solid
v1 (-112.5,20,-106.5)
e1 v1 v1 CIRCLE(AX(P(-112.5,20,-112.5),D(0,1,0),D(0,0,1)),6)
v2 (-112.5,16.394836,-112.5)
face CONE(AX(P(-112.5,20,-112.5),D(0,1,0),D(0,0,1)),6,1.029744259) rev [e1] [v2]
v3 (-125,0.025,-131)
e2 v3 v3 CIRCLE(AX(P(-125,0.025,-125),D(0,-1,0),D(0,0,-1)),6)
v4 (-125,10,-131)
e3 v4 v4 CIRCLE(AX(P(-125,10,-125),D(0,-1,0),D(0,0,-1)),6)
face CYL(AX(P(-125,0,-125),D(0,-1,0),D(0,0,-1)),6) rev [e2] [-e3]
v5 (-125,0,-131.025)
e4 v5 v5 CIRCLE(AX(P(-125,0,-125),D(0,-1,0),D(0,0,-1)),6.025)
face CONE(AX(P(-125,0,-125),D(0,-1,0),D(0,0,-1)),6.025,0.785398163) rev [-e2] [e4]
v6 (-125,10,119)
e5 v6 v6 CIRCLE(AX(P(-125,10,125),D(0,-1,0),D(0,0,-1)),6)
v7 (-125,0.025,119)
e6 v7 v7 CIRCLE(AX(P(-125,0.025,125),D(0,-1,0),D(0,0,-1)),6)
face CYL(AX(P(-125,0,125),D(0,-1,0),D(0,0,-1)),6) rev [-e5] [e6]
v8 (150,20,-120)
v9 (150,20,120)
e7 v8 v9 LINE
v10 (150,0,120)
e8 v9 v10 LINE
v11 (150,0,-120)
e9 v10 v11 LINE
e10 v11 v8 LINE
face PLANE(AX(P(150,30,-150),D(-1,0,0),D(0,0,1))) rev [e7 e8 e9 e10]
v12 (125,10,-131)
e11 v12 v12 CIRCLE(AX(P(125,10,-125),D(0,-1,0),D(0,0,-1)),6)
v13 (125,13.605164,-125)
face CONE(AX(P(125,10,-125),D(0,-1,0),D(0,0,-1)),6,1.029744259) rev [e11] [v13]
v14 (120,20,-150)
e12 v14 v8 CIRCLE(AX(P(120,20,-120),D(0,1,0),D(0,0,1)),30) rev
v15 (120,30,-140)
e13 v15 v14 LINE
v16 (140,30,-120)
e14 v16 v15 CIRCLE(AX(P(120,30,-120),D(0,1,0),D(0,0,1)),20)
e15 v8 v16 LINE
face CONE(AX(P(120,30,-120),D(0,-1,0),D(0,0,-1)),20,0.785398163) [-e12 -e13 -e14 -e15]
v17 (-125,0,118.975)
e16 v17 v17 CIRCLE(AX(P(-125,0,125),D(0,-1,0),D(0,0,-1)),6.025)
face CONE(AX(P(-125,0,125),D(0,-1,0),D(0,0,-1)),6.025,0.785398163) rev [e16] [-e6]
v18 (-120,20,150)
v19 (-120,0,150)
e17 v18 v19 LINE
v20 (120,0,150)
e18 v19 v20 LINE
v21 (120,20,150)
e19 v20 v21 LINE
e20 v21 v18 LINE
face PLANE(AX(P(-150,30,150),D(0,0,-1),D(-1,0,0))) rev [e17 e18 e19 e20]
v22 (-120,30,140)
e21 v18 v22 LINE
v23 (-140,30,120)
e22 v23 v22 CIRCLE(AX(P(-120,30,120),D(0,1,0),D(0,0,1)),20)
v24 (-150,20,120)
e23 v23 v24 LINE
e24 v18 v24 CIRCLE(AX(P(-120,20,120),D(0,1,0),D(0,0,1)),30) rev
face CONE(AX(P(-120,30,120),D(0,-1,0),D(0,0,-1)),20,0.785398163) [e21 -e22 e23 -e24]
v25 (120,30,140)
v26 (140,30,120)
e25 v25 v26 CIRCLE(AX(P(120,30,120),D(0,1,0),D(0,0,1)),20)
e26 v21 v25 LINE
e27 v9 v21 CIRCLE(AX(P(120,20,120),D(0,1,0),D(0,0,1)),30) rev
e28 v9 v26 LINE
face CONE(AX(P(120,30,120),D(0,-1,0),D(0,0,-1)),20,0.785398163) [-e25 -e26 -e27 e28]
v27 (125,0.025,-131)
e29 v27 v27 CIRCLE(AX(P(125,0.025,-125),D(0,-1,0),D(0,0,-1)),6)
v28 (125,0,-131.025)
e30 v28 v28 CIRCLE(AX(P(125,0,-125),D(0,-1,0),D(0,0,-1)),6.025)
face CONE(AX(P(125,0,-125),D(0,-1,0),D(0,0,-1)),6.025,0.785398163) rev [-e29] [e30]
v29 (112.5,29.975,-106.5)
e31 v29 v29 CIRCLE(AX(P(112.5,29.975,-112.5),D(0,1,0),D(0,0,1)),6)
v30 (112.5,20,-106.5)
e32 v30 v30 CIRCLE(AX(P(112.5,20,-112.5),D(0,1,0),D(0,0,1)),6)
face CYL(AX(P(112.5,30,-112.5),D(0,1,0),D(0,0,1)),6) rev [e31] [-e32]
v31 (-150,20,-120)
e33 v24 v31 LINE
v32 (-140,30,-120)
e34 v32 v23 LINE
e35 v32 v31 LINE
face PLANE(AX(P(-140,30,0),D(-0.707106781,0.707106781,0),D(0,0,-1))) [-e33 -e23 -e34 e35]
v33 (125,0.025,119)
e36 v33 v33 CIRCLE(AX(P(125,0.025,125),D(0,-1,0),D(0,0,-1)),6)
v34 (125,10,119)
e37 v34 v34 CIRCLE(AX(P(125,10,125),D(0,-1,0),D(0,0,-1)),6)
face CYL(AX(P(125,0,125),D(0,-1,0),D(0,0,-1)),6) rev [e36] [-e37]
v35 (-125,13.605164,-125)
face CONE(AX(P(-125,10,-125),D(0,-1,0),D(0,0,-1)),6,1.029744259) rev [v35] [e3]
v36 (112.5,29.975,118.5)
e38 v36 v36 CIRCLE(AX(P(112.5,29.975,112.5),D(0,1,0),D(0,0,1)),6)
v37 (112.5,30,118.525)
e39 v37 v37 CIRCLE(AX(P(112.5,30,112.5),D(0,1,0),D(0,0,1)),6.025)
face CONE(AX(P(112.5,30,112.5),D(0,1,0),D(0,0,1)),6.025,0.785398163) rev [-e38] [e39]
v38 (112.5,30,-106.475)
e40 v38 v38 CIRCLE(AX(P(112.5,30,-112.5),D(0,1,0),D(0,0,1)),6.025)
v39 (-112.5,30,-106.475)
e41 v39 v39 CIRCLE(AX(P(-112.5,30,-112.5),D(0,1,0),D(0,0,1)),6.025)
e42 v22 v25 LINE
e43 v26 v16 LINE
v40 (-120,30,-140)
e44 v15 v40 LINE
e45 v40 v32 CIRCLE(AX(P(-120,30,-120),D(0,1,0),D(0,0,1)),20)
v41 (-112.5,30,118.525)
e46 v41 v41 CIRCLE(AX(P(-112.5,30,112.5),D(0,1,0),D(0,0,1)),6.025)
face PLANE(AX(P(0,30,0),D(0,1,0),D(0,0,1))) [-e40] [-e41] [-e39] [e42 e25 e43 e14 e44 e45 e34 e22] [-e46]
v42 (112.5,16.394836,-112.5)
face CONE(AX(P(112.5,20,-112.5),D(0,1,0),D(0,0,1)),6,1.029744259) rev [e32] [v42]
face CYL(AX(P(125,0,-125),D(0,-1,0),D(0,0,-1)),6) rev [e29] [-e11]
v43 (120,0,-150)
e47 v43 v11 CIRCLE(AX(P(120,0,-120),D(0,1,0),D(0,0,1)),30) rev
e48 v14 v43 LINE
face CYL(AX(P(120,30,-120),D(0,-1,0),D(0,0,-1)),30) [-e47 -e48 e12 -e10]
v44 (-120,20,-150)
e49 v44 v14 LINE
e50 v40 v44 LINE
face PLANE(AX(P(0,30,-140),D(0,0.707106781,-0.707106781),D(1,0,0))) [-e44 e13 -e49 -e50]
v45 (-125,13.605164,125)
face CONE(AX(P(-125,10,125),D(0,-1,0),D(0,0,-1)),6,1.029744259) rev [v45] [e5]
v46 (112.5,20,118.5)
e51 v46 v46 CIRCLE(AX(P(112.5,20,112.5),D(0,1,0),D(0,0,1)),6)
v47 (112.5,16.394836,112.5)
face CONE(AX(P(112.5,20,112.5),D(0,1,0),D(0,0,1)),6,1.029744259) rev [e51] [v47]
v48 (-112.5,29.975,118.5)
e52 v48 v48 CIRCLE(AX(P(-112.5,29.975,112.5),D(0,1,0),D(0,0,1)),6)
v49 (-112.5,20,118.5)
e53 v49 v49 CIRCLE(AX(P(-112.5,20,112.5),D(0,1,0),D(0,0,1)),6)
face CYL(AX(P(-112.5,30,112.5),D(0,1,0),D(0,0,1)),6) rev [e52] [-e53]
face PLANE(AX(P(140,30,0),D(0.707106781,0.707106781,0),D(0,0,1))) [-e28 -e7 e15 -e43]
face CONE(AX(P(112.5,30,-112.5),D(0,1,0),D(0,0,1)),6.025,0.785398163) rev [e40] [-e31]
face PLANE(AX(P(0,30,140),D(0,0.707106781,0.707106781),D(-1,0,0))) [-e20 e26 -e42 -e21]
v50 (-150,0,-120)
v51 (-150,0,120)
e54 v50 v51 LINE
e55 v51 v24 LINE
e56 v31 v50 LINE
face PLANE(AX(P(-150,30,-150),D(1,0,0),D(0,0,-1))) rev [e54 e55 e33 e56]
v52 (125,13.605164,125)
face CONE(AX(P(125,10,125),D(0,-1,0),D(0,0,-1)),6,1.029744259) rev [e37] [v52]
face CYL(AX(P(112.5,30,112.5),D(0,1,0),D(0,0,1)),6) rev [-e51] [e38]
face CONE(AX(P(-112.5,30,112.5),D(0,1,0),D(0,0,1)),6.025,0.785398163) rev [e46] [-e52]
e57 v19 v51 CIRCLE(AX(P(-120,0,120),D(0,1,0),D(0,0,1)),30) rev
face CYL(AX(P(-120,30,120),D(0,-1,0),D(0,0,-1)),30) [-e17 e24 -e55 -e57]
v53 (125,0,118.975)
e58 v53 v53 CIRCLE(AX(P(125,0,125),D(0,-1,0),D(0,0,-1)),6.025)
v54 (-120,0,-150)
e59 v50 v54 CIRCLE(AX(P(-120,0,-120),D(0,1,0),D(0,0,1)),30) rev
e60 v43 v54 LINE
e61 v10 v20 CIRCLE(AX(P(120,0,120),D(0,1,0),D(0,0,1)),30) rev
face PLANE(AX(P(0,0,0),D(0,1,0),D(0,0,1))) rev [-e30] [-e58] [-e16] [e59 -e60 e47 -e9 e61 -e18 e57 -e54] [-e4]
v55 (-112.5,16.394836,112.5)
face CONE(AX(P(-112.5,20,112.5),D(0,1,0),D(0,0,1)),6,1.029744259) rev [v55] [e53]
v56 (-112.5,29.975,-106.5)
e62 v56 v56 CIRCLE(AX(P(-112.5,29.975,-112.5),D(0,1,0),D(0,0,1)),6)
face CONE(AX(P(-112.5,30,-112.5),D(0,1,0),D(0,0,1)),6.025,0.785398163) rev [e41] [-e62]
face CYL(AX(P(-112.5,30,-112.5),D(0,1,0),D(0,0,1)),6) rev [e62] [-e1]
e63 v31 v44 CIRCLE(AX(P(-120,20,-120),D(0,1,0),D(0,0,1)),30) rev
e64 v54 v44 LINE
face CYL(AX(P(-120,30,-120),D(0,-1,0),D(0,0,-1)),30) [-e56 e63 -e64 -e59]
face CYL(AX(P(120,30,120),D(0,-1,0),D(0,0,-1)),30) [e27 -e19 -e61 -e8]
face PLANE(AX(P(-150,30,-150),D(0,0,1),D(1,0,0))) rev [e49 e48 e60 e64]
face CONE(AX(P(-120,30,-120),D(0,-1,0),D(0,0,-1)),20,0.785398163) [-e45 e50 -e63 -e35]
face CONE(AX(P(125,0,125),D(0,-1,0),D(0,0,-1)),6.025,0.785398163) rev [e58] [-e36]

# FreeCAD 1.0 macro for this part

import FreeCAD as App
import Part
import Sketcher
from FreeCAD import Vector


def edges_at(feature, points):
    """Names of the edges that pass closest to the given points."""
    edges = feature.Shape.Edges
    near = lambda p: min(range(len(edges)), key=lambda i: edges[i].distToShape(Part.Vertex(*p))[0])
    return sorted({f"Edge{near(p) + 1}" for p in points})


def add_polygon(sketch, points):
    """Adds a closed chain of lines whose ends are joined by coincident constraints."""
    first, n = sketch.GeometryCount, len(points)
    for a, b in zip(points, points[1:] + points[:1]):
        sketch.addGeometry(Part.LineSegment(App.Vector(*a, 0), App.Vector(*b, 0)), False)
    for i in range(n):
        sketch.addConstraint(Sketcher.Constraint("Coincident", first + i, 2, first + (i + 1) % n, 1))

doc = App.newDocument("Part")
body = doc.addObject("PartDesign::Body", "Body")

sketch1 = body.newObject("Sketcher::SketchObject", "Sketch")
sketch1.AttachmentSupport = (doc.getObject("XZ_Plane"), [""])
sketch1.MapMode = "FlatFace"
add_polygon(sketch1, [(-150, -150), (-150, 150), (150, 150), (150, -150)])
sketch1.addConstraint([
    Sketcher.Constraint("Vertical", 0),
    Sketcher.Constraint("Horizontal", 1),
    Sketcher.Constraint("Vertical", 2),
    Sketcher.Constraint("Horizontal", 3),
    Sketcher.Constraint("Symmetric", 0, 2, 2, 2, -1, 1),
    Sketcher.Constraint("Equal", 3, 0),
    Sketcher.Constraint("DistanceX", 1, 1, 1, 2, 300.0),
])
pad1 = body.newObject("PartDesign::Pad", "Pad")
pad1.Profile = sketch1
pad1.Length = 30
pad1.Reversed = True

sketch2 = body.newObject("Sketcher::SketchObject", "Sketch001")
sketch2.AttachmentSupport = (doc.getObject("XZ_Plane"), [""])
sketch2.MapMode = "FlatFace"
sketch2.AttachmentOffset = App.Placement(Vector(0, 0, -30), App.Rotation())
sketch2.addGeometry([
    Part.Circle(Vector(-112, -112, 0), Vector(0, 0, 1), 6),
    Part.Circle(Vector(112, -112, 0), Vector(0, 0, 1), 6),
    Part.Circle(Vector(112, 112, 0), Vector(0, 0, 1), 6),
    Part.Circle(Vector(-112, 112, 0), Vector(0, 0, 1), 6),
], False)
sketch2.addConstraint([
    Sketcher.Constraint("Equal", 0, 1),
    Sketcher.Constraint("Equal", 1, 2),
    Sketcher.Constraint("Equal", 2, 3),
    Sketcher.Constraint("Symmetric", 0, 3, 2, 3, -1, 1),
    Sketcher.Constraint("Symmetric", 1, 3, 3, 3, -1, 1),
    Sketcher.Constraint("Symmetric", 0, 3, 1, 3, -2),
    Sketcher.Constraint("Diameter", 0, 12.0),
    Sketcher.Constraint("DistanceX", 0, 3, 1, 3, 225.0),
    Sketcher.Constraint("DistanceY", 1, 3, 2, 3, 225.0),
])
doc.recompute()
hole = body.newObject("PartDesign::Hole", "Hole")
hole.Profile = sketch2
hole.ThreadType = "None"
hole.Diameter = 12
hole.DepthType = "Dimension"
hole.Depth = 10
hole.DrillPoint = "Angled"
hole.DrillPointAngle = 118
hole.HoleCutType = "Countersink"
hole.HoleCutDiameter = 12.05
hole.HoleCutCountersinkAngle = 90
hole.Reversed = True

sketch3 = body.newObject("Sketcher::SketchObject", "Sketch002")
sketch3.AttachmentSupport = (doc.getObject("XZ_Plane"), [""])
sketch3.MapMode = "FlatFace"
sketch3.addGeometry([
    Part.Circle(Vector(125, -125, 0), Vector(0, 0, 1), 6),
    Part.Circle(Vector(-125, -125, 0), Vector(0, 0, 1), 6),
    Part.Circle(Vector(-125, 125, 0), Vector(0, 0, 1), 6),
    Part.Circle(Vector(125, 125, 0), Vector(0, 0, 1), 6),
], False)
sketch3.addConstraint([
    Sketcher.Constraint("Equal", 0, 1),
    Sketcher.Constraint("Equal", 1, 2),
    Sketcher.Constraint("Equal", 2, 3),
    Sketcher.Constraint("Symmetric", 0, 3, 2, 3, -1, 1),
    Sketcher.Constraint("Symmetric", 1, 3, 3, 3, -1, 1),
    Sketcher.Constraint("Symmetric", 0, 3, 1, 3, -2),
    Sketcher.Constraint("Diameter", 0, 12.0),
    Sketcher.Constraint("DistanceX", -1, 1, 0, 3, 125.0),
    Sketcher.Constraint("DistanceY", 0, 3, -1, 1, 125.0),
])
doc.recompute()
hole2 = body.newObject("PartDesign::Hole", "Hole001")
hole2.Profile = sketch3
hole2.ThreadType = "None"
hole2.Diameter = 12
hole2.DepthType = "Dimension"
hole2.Depth = 10
hole2.DrillPoint = "Angled"
hole2.DrillPointAngle = 118
hole2.HoleCutType = "Countersink"
hole2.HoleCutDiameter = 12.05
hole2.HoleCutCountersinkAngle = 90
doc.recompute()

fillet = body.newObject("PartDesign::Fillet", "Fillet")
fillet.Base = (hole2, edges_at(hole2, [
    (150, 15, 150),
    (-150, 15, 150),
    (-150, 15, -150),
    (150, 15, -150),
]))
fillet.Radius = 30
doc.recompute()

chamfer = body.newObject("PartDesign::Chamfer", "Chamfer")
chamfer.Base = (fillet, edges_at(fillet, [
    (150, 30, 0),
    (0, 30, 150),
    (0, 30, -150),
    (-150, 30, 0),
    (-141.213, 30, 141.213),
    (141.213, 30, -141.213),
    (-141.213, 30, -141.213),
    (141.213, 30, 141.213),
]))
chamfer.Size = 10

doc.recompute()
